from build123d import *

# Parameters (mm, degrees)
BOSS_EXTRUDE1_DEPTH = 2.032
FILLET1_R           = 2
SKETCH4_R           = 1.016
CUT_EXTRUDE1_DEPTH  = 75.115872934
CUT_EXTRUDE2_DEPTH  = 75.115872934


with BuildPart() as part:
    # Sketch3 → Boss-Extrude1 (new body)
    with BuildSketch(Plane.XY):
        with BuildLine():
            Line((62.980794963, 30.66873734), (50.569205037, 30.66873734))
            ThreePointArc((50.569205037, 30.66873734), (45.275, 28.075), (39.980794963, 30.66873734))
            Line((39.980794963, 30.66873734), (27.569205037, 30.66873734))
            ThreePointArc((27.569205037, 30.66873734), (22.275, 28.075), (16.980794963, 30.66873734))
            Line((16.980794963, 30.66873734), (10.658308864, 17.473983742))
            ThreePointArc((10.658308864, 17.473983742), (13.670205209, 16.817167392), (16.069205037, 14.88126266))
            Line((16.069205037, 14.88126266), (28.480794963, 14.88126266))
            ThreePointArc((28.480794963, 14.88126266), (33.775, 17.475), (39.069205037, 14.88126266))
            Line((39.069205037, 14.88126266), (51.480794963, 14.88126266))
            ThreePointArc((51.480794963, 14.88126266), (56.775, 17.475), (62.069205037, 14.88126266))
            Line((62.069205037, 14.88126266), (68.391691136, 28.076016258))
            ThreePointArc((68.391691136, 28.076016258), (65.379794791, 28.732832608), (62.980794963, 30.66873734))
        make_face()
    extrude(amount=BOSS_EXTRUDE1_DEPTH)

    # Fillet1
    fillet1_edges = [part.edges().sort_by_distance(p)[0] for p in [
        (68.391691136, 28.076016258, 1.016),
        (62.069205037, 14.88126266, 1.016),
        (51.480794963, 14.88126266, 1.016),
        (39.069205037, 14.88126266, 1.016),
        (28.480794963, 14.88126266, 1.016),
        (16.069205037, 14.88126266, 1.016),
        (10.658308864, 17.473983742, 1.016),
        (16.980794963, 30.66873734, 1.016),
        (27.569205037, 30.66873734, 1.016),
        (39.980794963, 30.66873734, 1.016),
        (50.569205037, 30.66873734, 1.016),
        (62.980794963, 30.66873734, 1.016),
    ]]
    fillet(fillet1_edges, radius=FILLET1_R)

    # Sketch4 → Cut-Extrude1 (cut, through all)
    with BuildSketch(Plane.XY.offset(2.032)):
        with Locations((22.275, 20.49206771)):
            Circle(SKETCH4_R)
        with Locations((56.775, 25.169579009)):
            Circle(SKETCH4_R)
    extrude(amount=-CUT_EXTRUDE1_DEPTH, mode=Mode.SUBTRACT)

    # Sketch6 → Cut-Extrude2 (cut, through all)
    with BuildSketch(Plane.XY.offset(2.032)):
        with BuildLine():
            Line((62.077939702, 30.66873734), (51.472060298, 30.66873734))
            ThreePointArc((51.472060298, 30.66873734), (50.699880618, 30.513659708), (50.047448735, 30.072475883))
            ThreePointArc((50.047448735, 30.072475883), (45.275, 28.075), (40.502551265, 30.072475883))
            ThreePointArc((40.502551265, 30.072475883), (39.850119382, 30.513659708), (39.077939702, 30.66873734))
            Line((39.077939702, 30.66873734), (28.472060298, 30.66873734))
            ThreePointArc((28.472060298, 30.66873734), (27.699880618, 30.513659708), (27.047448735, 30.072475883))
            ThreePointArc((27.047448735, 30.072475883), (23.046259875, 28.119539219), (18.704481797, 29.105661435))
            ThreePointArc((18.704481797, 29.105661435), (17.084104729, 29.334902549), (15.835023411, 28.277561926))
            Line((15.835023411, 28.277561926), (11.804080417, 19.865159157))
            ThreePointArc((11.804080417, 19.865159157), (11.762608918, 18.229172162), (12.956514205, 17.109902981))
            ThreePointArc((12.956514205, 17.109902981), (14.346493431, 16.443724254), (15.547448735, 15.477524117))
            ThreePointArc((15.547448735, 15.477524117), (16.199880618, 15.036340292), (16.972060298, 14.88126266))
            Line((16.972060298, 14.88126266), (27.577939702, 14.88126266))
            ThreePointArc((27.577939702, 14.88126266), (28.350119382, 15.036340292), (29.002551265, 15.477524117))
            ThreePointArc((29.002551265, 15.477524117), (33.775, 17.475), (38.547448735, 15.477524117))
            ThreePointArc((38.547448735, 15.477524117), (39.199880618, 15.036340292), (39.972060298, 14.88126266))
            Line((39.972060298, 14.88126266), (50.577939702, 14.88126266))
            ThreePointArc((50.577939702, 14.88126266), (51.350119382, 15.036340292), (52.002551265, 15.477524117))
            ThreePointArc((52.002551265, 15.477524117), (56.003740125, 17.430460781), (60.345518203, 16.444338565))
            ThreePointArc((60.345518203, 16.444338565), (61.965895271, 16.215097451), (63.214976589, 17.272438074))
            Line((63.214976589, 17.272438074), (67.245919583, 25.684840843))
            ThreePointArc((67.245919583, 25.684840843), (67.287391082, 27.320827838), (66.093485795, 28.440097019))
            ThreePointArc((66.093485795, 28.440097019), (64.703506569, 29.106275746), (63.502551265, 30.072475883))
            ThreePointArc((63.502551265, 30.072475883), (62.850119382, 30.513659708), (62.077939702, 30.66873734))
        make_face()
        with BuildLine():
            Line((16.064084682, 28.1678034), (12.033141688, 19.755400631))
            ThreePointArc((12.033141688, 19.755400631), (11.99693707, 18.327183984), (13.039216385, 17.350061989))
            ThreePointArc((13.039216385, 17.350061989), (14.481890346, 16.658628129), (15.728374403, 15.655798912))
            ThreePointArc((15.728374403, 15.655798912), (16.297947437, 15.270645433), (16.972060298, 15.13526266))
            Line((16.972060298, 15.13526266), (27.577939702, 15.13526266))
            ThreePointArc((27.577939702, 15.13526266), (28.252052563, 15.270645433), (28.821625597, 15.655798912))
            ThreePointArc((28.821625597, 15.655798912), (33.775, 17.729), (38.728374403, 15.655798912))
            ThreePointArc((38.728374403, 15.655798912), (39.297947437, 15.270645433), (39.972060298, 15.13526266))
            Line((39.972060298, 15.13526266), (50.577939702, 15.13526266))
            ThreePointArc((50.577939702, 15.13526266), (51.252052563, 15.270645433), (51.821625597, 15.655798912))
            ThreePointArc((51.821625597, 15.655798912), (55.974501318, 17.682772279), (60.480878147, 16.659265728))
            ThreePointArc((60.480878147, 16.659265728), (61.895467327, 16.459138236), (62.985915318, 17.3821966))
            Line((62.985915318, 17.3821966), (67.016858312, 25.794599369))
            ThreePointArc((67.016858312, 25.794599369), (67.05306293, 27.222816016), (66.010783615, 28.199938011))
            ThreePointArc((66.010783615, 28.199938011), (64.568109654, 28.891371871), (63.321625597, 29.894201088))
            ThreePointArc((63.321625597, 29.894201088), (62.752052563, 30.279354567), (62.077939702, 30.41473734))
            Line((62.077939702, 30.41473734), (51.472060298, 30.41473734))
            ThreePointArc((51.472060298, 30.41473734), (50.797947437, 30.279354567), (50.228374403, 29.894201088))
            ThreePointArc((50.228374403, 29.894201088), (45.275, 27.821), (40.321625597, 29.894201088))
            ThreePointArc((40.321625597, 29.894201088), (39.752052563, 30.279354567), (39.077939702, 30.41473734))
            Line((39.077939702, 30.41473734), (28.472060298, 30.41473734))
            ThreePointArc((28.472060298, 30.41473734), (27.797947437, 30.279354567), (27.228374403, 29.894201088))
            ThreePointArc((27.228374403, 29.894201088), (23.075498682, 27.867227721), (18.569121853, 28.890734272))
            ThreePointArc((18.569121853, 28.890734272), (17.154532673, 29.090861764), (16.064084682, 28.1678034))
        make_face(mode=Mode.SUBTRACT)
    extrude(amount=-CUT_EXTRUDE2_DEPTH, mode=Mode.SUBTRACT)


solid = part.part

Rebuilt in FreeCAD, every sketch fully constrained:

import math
import FreeCAD as App
import Part
import Sketcher

V = App.Vector


def edges_at(feature, points):
    """Names of the edges that pass closest to the given points."""
    edges = feature.Shape.Edges
    near = lambda p: min(range(len(edges)), key=lambda i: edges[i].distToShape(Part.Vertex(*p))[0])
    return sorted({f"Edge{near(p) + 1}" for p in points})

doc = App.newDocument("Part")
params = doc.addObject("Spreadsheet::Sheet", "Params")
for row, (alias, value) in enumerate([
    ("sketch1_radius", "6.7 mm"),
    ("pad1_length", "2.032 mm"),
    ("fillet_radius", "2 mm"),
    ("sketch3_radius", "2 mm"),
    ("sketch3_radius2", "6.7 mm"),
], start=1):
    params.set(f"A{row}", alias)
    params.set(f"B{row}", "=" + value)
    params.setAlias(f"B{row}", alias)

body = doc.addObject("PartDesign::Body", "Body")

# Sketch on XY plane
sketch1 = body.newObject("Sketcher::SketchObject", "Sketch")
sketch1.AttachmentSupport = (doc.getObject("XY_Plane"), [""])
sketch1.MapMode = "FlatFace"
sketch1.addGeometry(Part.LineSegment(V(63, 31, 0), V(51, 31, 0)), False)
sketch1.addGeometry(Part.ArcOfCircle(Part.Circle(V(45, 35, 0), V(0, 0, 1), 7), math.radians(-142), math.radians(-38)), False)
sketch1.addGeometry(Part.LineSegment(V(40, 31, 0), V(28, 31, 0)), False)
sketch1.addGeometry(Part.ArcOfCircle(Part.Circle(V(22, 35, 0), V(0, 0, 1), 7), math.radians(-142), math.radians(-38)), False)
sketch1.addGeometry(Part.LineSegment(V(17, 31, 0), V(11, 17, 0)), False)
sketch1.addGeometry(Part.ArcOfCircle(Part.Circle(V(11, 11, 0), V(0, 0, 1), 7), math.radians(38), math.radians(91)), False)
sketch1.addGeometry(Part.LineSegment(V(16, 15, 0), V(28, 15, 0)), False)
sketch1.addGeometry(Part.ArcOfCircle(Part.Circle(V(34, 11, 0), V(0, 0, 1), 7), math.radians(38), math.radians(142)), False)
sketch1.addGeometry(Part.LineSegment(V(39, 15, 0), V(51, 15, 0)), False)
sketch1.addGeometry(Part.ArcOfCircle(Part.Circle(V(57, 11, 0), V(0, 0, 1), 7), math.radians(38), math.radians(142)), False)
sketch1.addGeometry(Part.LineSegment(V(62, 15, 0), V(68, 28, 0)), False)
sketch1.addGeometry(Part.ArcOfCircle(Part.Circle(V(68, 35, 0), V(0, 0, 1), 7), math.radians(-142), math.radians(-89)), False)
sketch1.addConstraint(Sketcher.Constraint("Coincident", 0, 2, 1, 2))
sketch1.addConstraint(Sketcher.Constraint("Coincident", 1, 1, 2, 1))
sketch1.addConstraint(Sketcher.Constraint("Coincident", 2, 2, 3, 2))
sketch1.addConstraint(Sketcher.Constraint("Coincident", 3, 1, 4, 1))
sketch1.addConstraint(Sketcher.Constraint("Coincident", 4, 2, 5, 2))
sketch1.addConstraint(Sketcher.Constraint("Coincident", 5, 1, 6, 1))
sketch1.addConstraint(Sketcher.Constraint("Coincident", 6, 2, 7, 2))
sketch1.addConstraint(Sketcher.Constraint("Coincident", 7, 1, 8, 1))
sketch1.addConstraint(Sketcher.Constraint("Coincident", 8, 2, 9, 2))
sketch1.addConstraint(Sketcher.Constraint("Coincident", 9, 1, 10, 1))
sketch1.addConstraint(Sketcher.Constraint("Coincident", 10, 2, 11, 2))
sketch1.addConstraint(Sketcher.Constraint("Coincident", 11, 1, 0, 1))
sketch1.addConstraint(Sketcher.Constraint("Horizontal", 0))
sketch1.addConstraint(Sketcher.Constraint("Horizontal", 2))
sketch1.addConstraint(Sketcher.Constraint("Horizontal", 6))
sketch1.addConstraint(Sketcher.Constraint("Horizontal", 8))
sketch1.addConstraint(Sketcher.Constraint("Equal", 1, 3))
sketch1.addConstraint(Sketcher.Constraint("Equal", 3, 5))
sketch1.addConstraint(Sketcher.Constraint("Equal", 5, 7))
sketch1.addConstraint(Sketcher.Constraint("Equal", 7, 9))
sketch1.addConstraint(Sketcher.Constraint("Equal", 9, 11))
sketch1.addConstraint(Sketcher.Constraint("Parallel", 4, 10))
sketch1.addConstraint(Sketcher.Constraint("Horizontal", 1, 3, 3, 3))
sketch1.addConstraint(Sketcher.Constraint("Horizontal", 5, 3, 7, 3))
sketch1.addConstraint(Sketcher.Constraint("Horizontal", 7, 3, 9, 3))
sketch1.addConstraint(Sketcher.Constraint("Horizontal", 3, 3, 11, 3))
sketch1.addConstraint(Sketcher.Constraint("Horizontal", 0, 2, 1, 1))
sketch1.addConstraint(Sketcher.Constraint("Horizontal", 2, 2, 3, 1))
sketch1.addConstraint(Sketcher.Constraint("Horizontal", 6, 2, 7, 1))
sketch1.addConstraint(Sketcher.Constraint("Horizontal", 8, 2, 9, 1))
sketch1.addConstraint(Sketcher.Constraint("Equal", 0, 2))
sketch1.addConstraint(Sketcher.Constraint("Equal", 2, 6))
sketch1.addConstraint(Sketcher.Constraint("Equal", 6, 8))
sketch1.addConstraint(Sketcher.Constraint("Equal", 4, 10))
sketch1.addConstraint(Sketcher.Constraint("Radius", 1, 6.7))
sketch1.addConstraint(Sketcher.Constraint("DistanceX", 3, 3, 1, 3, 23.0))
sketch1.addConstraint(Sketcher.Constraint("DistanceY", 5, 3, 3, 3, 24.0))
sketch1.addConstraint(Sketcher.Constraint("DistanceX", 5, 3, 3, 3, 11.5))
sketch1.addConstraint(Sketcher.Constraint("DistanceX", -1, 1, 1, 3, 45.275))
sketch1.addConstraint(Sketcher.Constraint("DistanceY", -1, 1, 1, 3, 34.775))
sketch1.addConstraint(Sketcher.Constraint("DistanceX", 0, 2, 0, 1, 12.41159))
sketch1.addConstraint(Sketcher.Constraint("DistanceX", -1, 1, 4, 2, 10.658309))
sketch1.setExpression("Constraints[34]", "Params.sketch1_radius")
pad1 = body.newObject("PartDesign::Pad", "Pad")
pad1.Profile = sketch1
pad1.setExpression("Length", "Params.pad1_length")
doc.recompute()

fillet = body.newObject("PartDesign::Fillet", "Fillet")
fillet.Base = (pad1, edges_at(pad1, [
    (68.392, 28.076, 1.016),
    (62.069, 14.881, 1.016),
    (51.481, 14.881, 1.016),
    (39.069, 14.881, 1.016),
    (28.481, 14.881, 1.016),
    (16.069, 14.881, 1.016),
    (10.658, 17.474, 1.016),
    (16.981, 30.669, 1.016),
    (27.569, 30.669, 1.016),
    (39.981, 30.669, 1.016),
    (50.569, 30.669, 1.016),
    (62.981, 30.669, 1.016),
]))
fillet.setExpression("Radius", "Params.fillet_radius")

# Sketch on XY plane
sketch2 = body.newObject("Sketcher::SketchObject", "Sketch001")
sketch2.AttachmentSupport = (doc.getObject("XY_Plane"), [""])
sketch2.MapMode = "FlatFace"
sketch2.AttachmentOffset = App.Placement(V(0, 0, 2.032), App.Rotation())
sketch2.addGeometry(Part.Circle(V(22.3, 20.5, 0), V(0, 0, 1), 1), False)
sketch2.addGeometry(Part.Circle(V(56.8, 25.2, 0), V(0, 0, 1), 1), False)
sketch2.addConstraint(Sketcher.Constraint("Equal", 0, 1))
sketch2.addConstraint(Sketcher.Constraint("Diameter", 0, 2.032))
sketch2.addConstraint(Sketcher.Constraint("DistanceX", 0, 3, 1, 3, 34.5))
sketch2.addConstraint(Sketcher.Constraint("DistanceX", -1, 1, 0, 3, 22.275))
sketch2.addConstraint(Sketcher.Constraint("DistanceY", -1, 1, 1, 3, 25.169579))
sketch2.addConstraint(Sketcher.Constraint("DistanceY", 0, 3, 1, 3, 4.677511))
pocket1 = body.newObject("PartDesign::Pocket", "Pocket")
pocket1.Profile = sketch2
pocket1.Type = "ThroughAll"

# Sketch on XY plane
sketch3 = body.newObject("Sketcher::SketchObject", "Sketch002")
sketch3.AttachmentSupport = (doc.getObject("XY_Plane"), [""])
sketch3.MapMode = "FlatFace"
sketch3.AttachmentOffset = App.Placement(V(0, 0, 2.032), App.Rotation())
sketch3.addGeometry(Part.LineSegment(V(62.1, 30.7, 0), V(51.5, 30.7, 0)), False)
sketch3.addGeometry(Part.ArcOfCircle(Part.Circle(V(51.5, 28.7, 0), V(0, 0, 1), 2), math.radians(90), math.radians(135)), False)
sketch3.addGeometry(Part.ArcOfCircle(Part.Circle(V(45.3, 34.8, 0), V(0, 0, 1), 6.7), math.radians(-135), math.radians(-45)), False)
sketch3.addGeometry(Part.ArcOfCircle(Part.Circle(V(39.1, 28.7, 0), V(0, 0, 1), 2), math.radians(45), math.radians(90)), False)
sketch3.addGeometry(Part.LineSegment(V(39.1, 30.7, 0), V(28.5, 30.7, 0)), False)
sketch3.addGeometry(Part.ArcOfCircle(Part.Circle(V(28.5, 28.7, 0), V(0, 0, 1), 2), math.radians(90), math.radians(135)), False)
sketch3.addGeometry(Part.ArcOfCircle(Part.Circle(V(22.3, 34.8, 0), V(0, 0, 1), 6.7), math.radians(-122), math.radians(-45)), False)
sketch3.addGeometry(Part.ArcOfCircle(Part.Circle(V(17.6, 27.4, 0), V(0, 0, 1), 2), math.radians(58), math.radians(154)), False)
sketch3.addGeometry(Part.LineSegment(V(15.8, 28.3, 0), V(11.8, 19.9, 0)), False)
sketch3.addGeometry(Part.ArcOfCircle(Part.Circle(V(13.6, 19, 0), V(0, 0, 1), 2), math.radians(154), math.radians(251)), False)
sketch3.addGeometry(Part.ArcOfCircle(Part.Circle(V(10.8, 10.8, 0), V(0, 0, 1), 6.7), math.radians(45), math.radians(71)), False)
sketch3.addGeometry(Part.ArcOfCircle(Part.Circle(V(17, 16.9, 0), V(0, 0, 1), 2), math.radians(-135), math.radians(-90)), False)
sketch3.addGeometry(Part.LineSegment(V(17, 14.9, 0), V(27.6, 14.9, 0)), False)
sketch3.addGeometry(Part.ArcOfCircle(Part.Circle(V(27.6, 16.9, 0), V(0, 0, 1), 2), math.radians(-90), math.radians(-45)), False)
sketch3.addGeometry(Part.ArcOfCircle(Part.Circle(V(33.8, 10.8, 0), V(0, 0, 1), 6.7), math.radians(45), math.radians(135)), False)
sketch3.addGeometry(Part.ArcOfCircle(Part.Circle(V(40, 16.9, 0), V(0, 0, 1), 2), math.radians(-135), math.radians(-90)), False)
sketch3.addGeometry(Part.LineSegment(V(40, 14.9, 0), V(50.6, 14.9, 0)), False)
sketch3.addGeometry(Part.ArcOfCircle(Part.Circle(V(50.6, 16.9, 0), V(0, 0, 1), 2), math.radians(-90), math.radians(-45)), False)
sketch3.addGeometry(Part.ArcOfCircle(Part.Circle(V(56.8, 10.8, 0), V(0, 0, 1), 6.7), math.radians(58), math.radians(135)), False)
sketch3.addGeometry(Part.ArcOfCircle(Part.Circle(V(61.4, 18.1, 0), V(0, 0, 1), 2), math.radians(-122), math.radians(-26)), False)
sketch3.addGeometry(Part.LineSegment(V(63.2, 17.3, 0), V(67.2, 25.7, 0)), False)
sketch3.addGeometry(Part.ArcOfCircle(Part.Circle(V(65.4, 26.5, 0), V(0, 0, 1), 2), math.radians(-26), math.radians(71)), False)
sketch3.addGeometry(Part.ArcOfCircle(Part.Circle(V(68.3, 34.8, 0), V(0, 0, 1), 6.7), math.radians(-135), math.radians(-109)), False)
sketch3.addGeometry(Part.ArcOfCircle(Part.Circle(V(62.1, 28.7, 0), V(0, 0, 1), 2), math.radians(45), math.radians(90)), False)
sketch3.addGeometry(Part.LineSegment(V(12, 19.8, 0), V(16.1, 28.2, 0)), False)
sketch3.addGeometry(Part.ArcOfCircle(Part.Circle(V(17.6, 27.4, 0), V(0, 0, 1), 1.7), math.radians(58), math.radians(154)), False)
sketch3.addGeometry(Part.ArcOfCircle(Part.Circle(V(22.3, 34.8, 0), V(0, 0, 1), 7), math.radians(-122), math.radians(-45)), False)
sketch3.addGeometry(Part.ArcOfCircle(Part.Circle(V(28.5, 28.7, 0), V(0, 0, 1), 1.7), math.radians(90), math.radians(135)), False)
sketch3.addGeometry(Part.LineSegment(V(28.5, 30.4, 0), V(39.1, 30.4, 0)), False)
sketch3.addGeometry(Part.ArcOfCircle(Part.Circle(V(39.1, 28.7, 0), V(0, 0, 1), 1.7), math.radians(45), math.radians(90)), False)
sketch3.addGeometry(Part.ArcOfCircle(Part.Circle(V(45.3, 34.8, 0), V(0, 0, 1), 7), math.radians(-135), math.radians(-45)), False)
sketch3.addGeometry(Part.ArcOfCircle(Part.Circle(V(51.5, 28.7, 0), V(0, 0, 1), 1.7), math.radians(90), math.radians(135)), False)
sketch3.addGeometry(Part.LineSegment(V(51.5, 30.4, 0), V(62.1, 30.4, 0)), False)
sketch3.addGeometry(Part.ArcOfCircle(Part.Circle(V(62.1, 28.7, 0), V(0, 0, 1), 1.7), math.radians(45), math.radians(90)), False)
sketch3.addGeometry(Part.ArcOfCircle(Part.Circle(V(68.3, 34.8, 0), V(0, 0, 1), 7), math.radians(-135), math.radians(-109)), False)
sketch3.addGeometry(Part.ArcOfCircle(Part.Circle(V(65.4, 26.5, 0), V(0, 0, 1), 1.7), math.radians(-26), math.radians(71)), False)
sketch3.addGeometry(Part.LineSegment(V(67, 25.8, 0), V(63, 17.4, 0)), False)
sketch3.addGeometry(Part.ArcOfCircle(Part.Circle(V(61.4, 18.1, 0), V(0, 0, 1), 1.7), math.radians(-122), math.radians(-26)), False)
sketch3.addGeometry(Part.ArcOfCircle(Part.Circle(V(56.8, 10.8, 0), V(0, 0, 1), 7), math.radians(58), math.radians(135)), False)
sketch3.addGeometry(Part.ArcOfCircle(Part.Circle(V(50.6, 16.9, 0), V(0, 0, 1), 1.7), math.radians(-90), math.radians(-45)), False)
sketch3.addGeometry(Part.LineSegment(V(50.6, 15.1, 0), V(40, 15.1, 0)), False)
sketch3.addGeometry(Part.ArcOfCircle(Part.Circle(V(40, 16.9, 0), V(0, 0, 1), 1.7), math.radians(-135), math.radians(-90)), False)
sketch3.addGeometry(Part.ArcOfCircle(Part.Circle(V(33.8, 10.8, 0), V(0, 0, 1), 7), math.radians(45), math.radians(135)), False)
sketch3.addGeometry(Part.ArcOfCircle(Part.Circle(V(27.6, 16.9, 0), V(0, 0, 1), 1.7), math.radians(-90), math.radians(-45)), False)
sketch3.addGeometry(Part.LineSegment(V(27.6, 15.1, 0), V(17, 15.1, 0)), False)
sketch3.addGeometry(Part.ArcOfCircle(Part.Circle(V(17, 16.9, 0), V(0, 0, 1), 1.7), math.radians(-135), math.radians(-90)), False)
sketch3.addGeometry(Part.ArcOfCircle(Part.Circle(V(10.8, 10.8, 0), V(0, 0, 1), 7), math.radians(45), math.radians(71)), False)
sketch3.addGeometry(Part.ArcOfCircle(Part.Circle(V(13.6, 19, 0), V(0, 0, 1), 1.7), math.radians(154), math.radians(251)), False)
sketch3.addConstraint(Sketcher.Constraint("Tangent", 0, 2, 1, 1))
sketch3.addConstraint(Sketcher.Constraint("Tangent", 1, 2, 2, 2))
sketch3.addConstraint(Sketcher.Constraint("Tangent", 2, 1, 3, 1))
sketch3.addConstraint(Sketcher.Constraint("Tangent", 3, 2, 4, 1))
sketch3.addConstraint(Sketcher.Constraint("Tangent", 4, 2, 5, 1))
sketch3.addConstraint(Sketcher.Constraint("Tangent", 5, 2, 6, 2))
sketch3.addConstraint(Sketcher.Constraint("Tangent", 6, 1, 7, 1))
sketch3.addConstraint(Sketcher.Constraint("Tangent", 7, 2, 8, 1))
sketch3.addConstraint(Sketcher.Constraint("Tangent", 8, 2, 9, 1))
sketch3.addConstraint(Sketcher.Constraint("Tangent", 9, 2, 10, 2))
sketch3.addConstraint(Sketcher.Constraint("Tangent", 10, 1, 11, 1))
sketch3.addConstraint(Sketcher.Constraint("Tangent", 11, 2, 12, 1))
sketch3.addConstraint(Sketcher.Constraint("Tangent", 12, 2, 13, 1))
sketch3.addConstraint(Sketcher.Constraint("Tangent", 13, 2, 14, 2))
sketch3.addConstraint(Sketcher.Constraint("Tangent", 14, 1, 15, 1))
sketch3.addConstraint(Sketcher.Constraint("Tangent", 15, 2, 16, 1))
sketch3.addConstraint(Sketcher.Constraint("Tangent", 16, 2, 17, 1))
sketch3.addConstraint(Sketcher.Constraint("Tangent", 17, 2, 18, 2))
sketch3.addConstraint(Sketcher.Constraint("Tangent", 18, 1, 19, 1))
sketch3.addConstraint(Sketcher.Constraint("Tangent", 19, 2, 20, 1))
sketch3.addConstraint(Sketcher.Constraint("Tangent", 20, 2, 21, 1))
sketch3.addConstraint(Sketcher.Constraint("Tangent", 21, 2, 22, 2))
sketch3.addConstraint(Sketcher.Constraint("Tangent", 22, 1, 23, 1))
sketch3.addConstraint(Sketcher.Constraint("Tangent", 23, 2, 0, 1))
sketch3.addConstraint(Sketcher.Constraint("Tangent", 24, 2, 25, 2))
sketch3.addConstraint(Sketcher.Constraint("Tangent", 25, 1, 26, 1))
sketch3.addConstraint(Sketcher.Constraint("Tangent", 26, 2, 27, 2))
sketch3.addConstraint(Sketcher.Constraint("Tangent", 27, 1, 28, 1))
sketch3.addConstraint(Sketcher.Constraint("Tangent", 28, 2, 29, 2))
sketch3.addConstraint(Sketcher.Constraint("Tangent", 29, 1, 30, 1))
sketch3.addConstraint(Sketcher.Constraint("Tangent", 30, 2, 31, 2))
sketch3.addConstraint(Sketcher.Constraint("Tangent", 31, 1, 32, 1))
sketch3.addConstraint(Sketcher.Constraint("Tangent", 32, 2, 33, 2))
sketch3.addConstraint(Sketcher.Constraint("Tangent", 33, 1, 34, 1))
sketch3.addConstraint(Sketcher.Constraint("Tangent", 34, 2, 35, 2))
sketch3.addConstraint(Sketcher.Constraint("Tangent", 35, 1, 36, 1))
sketch3.addConstraint(Sketcher.Constraint("Tangent", 36, 2, 37, 2))
sketch3.addConstraint(Sketcher.Constraint("Tangent", 37, 1, 38, 1))
sketch3.addConstraint(Sketcher.Constraint("Tangent", 38, 2, 39, 2))
sketch3.addConstraint(Sketcher.Constraint("Tangent", 39, 1, 40, 1))
sketch3.addConstraint(Sketcher.Constraint("Tangent", 40, 2, 41, 2))
sketch3.addConstraint(Sketcher.Constraint("Tangent", 41, 1, 42, 1))
sketch3.addConstraint(Sketcher.Constraint("Tangent", 42, 2, 43, 2))
sketch3.addConstraint(Sketcher.Constraint("Tangent", 43, 1, 44, 1))
sketch3.addConstraint(Sketcher.Constraint("Tangent", 44, 2, 45, 2))
sketch3.addConstraint(Sketcher.Constraint("Tangent", 45, 1, 46, 1))
sketch3.addConstraint(Sketcher.Constraint("Tangent", 46, 2, 47, 2))
sketch3.addConstraint(Sketcher.Constraint("Tangent", 47, 1, 24, 1))
sketch3.addConstraint(Sketcher.Constraint("Horizontal", 0))
sketch3.addConstraint(Sketcher.Constraint("Horizontal", 4))
sketch3.addConstraint(Sketcher.Constraint("Horizontal", 12))
sketch3.addConstraint(Sketcher.Constraint("Horizontal", 16))
sketch3.addConstraint(Sketcher.Constraint("Horizontal", 28))
sketch3.addConstraint(Sketcher.Constraint("Horizontal", 32))
sketch3.addConstraint(Sketcher.Constraint("Horizontal", 40))
sketch3.addConstraint(Sketcher.Constraint("Horizontal", 44))
sketch3.addConstraint(Sketcher.Constraint("Coincident", 25, 3, 7, 3))
sketch3.addConstraint(Sketcher.Constraint("Coincident", 26, 3, 6, 3))
sketch3.addConstraint(Sketcher.Constraint("Coincident", 27, 3, 5, 3))
sketch3.addConstraint(Sketcher.Constraint("Coincident", 29, 3, 3, 3))
sketch3.addConstraint(Sketcher.Constraint("Coincident", 30, 3, 2, 3))
sketch3.addConstraint(Sketcher.Constraint("Coincident", 31, 3, 1, 3))
sketch3.addConstraint(Sketcher.Constraint("Coincident", 33, 3, 23, 3))
sketch3.addConstraint(Sketcher.Constraint("Coincident", 34, 3, 22, 3))
sketch3.addConstraint(Sketcher.Constraint("Coincident", 35, 3, 21, 3))
sketch3.addConstraint(Sketcher.Constraint("Coincident", 37, 3, 19, 3))
sketch3.addConstraint(Sketcher.Constraint("Coincident", 38, 3, 18, 3))
sketch3.addConstraint(Sketcher.Constraint("Coincident", 39, 3, 17, 3))
sketch3.addConstraint(Sketcher.Constraint("Coincident", 41, 3, 15, 3))
sketch3.addConstraint(Sketcher.Constraint("Coincident", 42, 3, 14, 3))
sketch3.addConstraint(Sketcher.Constraint("Coincident", 43, 3, 13, 3))
sketch3.addConstraint(Sketcher.Constraint("Coincident", 45, 3, 11, 3))
sketch3.addConstraint(Sketcher.Constraint("Coincident", 46, 3, 10, 3))
sketch3.addConstraint(Sketcher.Constraint("Coincident", 47, 3, 9, 3))
sketch3.addConstraint(Sketcher.Constraint("Equal", 1, 3))
sketch3.addConstraint(Sketcher.Constraint("Equal", 3, 5))
sketch3.addConstraint(Sketcher.Constraint("Equal", 2, 6))
sketch3.addConstraint(Sketcher.Constraint("Equal", 5, 7))
sketch3.addConstraint(Sketcher.Constraint("Equal", 7, 9))
sketch3.addConstraint(Sketcher.Constraint("Equal", 6, 10))
sketch3.addConstraint(Sketcher.Constraint("Equal", 9, 11))
sketch3.addConstraint(Sketcher.Constraint("Equal", 11, 13))
sketch3.addConstraint(Sketcher.Constraint("Equal", 10, 14))
sketch3.addConstraint(Sketcher.Constraint("Equal", 13, 15))
sketch3.addConstraint(Sketcher.Constraint("Equal", 15, 17))
sketch3.addConstraint(Sketcher.Constraint("Equal", 14, 18))
sketch3.addConstraint(Sketcher.Constraint("Equal", 17, 19))
sketch3.addConstraint(Sketcher.Constraint("Equal", 19, 21))
sketch3.addConstraint(Sketcher.Constraint("Equal", 18, 22))
sketch3.addConstraint(Sketcher.Constraint("Equal", 21, 23))
sketch3.addConstraint(Sketcher.Constraint("Equal", 35, 37))
sketch3.addConstraint(Sketcher.Constraint("Parallel", 8, 20))
sketch3.addConstraint(Sketcher.Constraint("Horizontal", 1, 3, 3, 3))
sketch3.addConstraint(Sketcher.Constraint("Horizontal", 2, 3, 6, 3))
sketch3.addConstraint(Sketcher.Constraint("Horizontal", 10, 3, 14, 3))
sketch3.addConstraint(Sketcher.Constraint("Horizontal", 13, 3, 15, 3))
sketch3.addConstraint(Sketcher.Constraint("Horizontal", 14, 3, 18, 3))
sketch3.addConstraint(Sketcher.Constraint("Horizontal", 6, 3, 22, 3))
sketch3.addConstraint(Sketcher.Constraint("Equal", 0, 4))
sketch3.addConstraint(Sketcher.Constraint("Equal", 4, 12))
sketch3.addConstraint(Sketcher.Constraint("Equal", 12, 16))
sketch3.addConstraint(Sketcher.Constraint("Equal", 8, 20))
sketch3.addConstraint(Sketcher.Constraint("Radius", 1, 2.0))
sketch3.addConstraint(Sketcher.Constraint("Radius", 2, 6.7))
sketch3.addConstraint(Sketcher.Constraint("Radius", 25, 1.746))
sketch3.addConstraint(Sketcher.Constraint("DistanceX", -1, 1, 2, 3, 45.275))
sketch3.addConstraint(Sketcher.Constraint("DistanceY", -1, 1, 2, 3, 34.775))
sketch3.addConstraint(Sketcher.Constraint("DistanceX", -1, 1, 6, 3, 22.275))
sketch3.addConstraint(Sketcher.Constraint("DistanceX", -1, 1, 10, 3, 10.775))
sketch3.addConstraint(Sketcher.Constraint("DistanceY", -1, 1, 10, 3, 10.775))
sketch3.addConstraint(Sketcher.Constraint("DistanceX", -1, 1, 14, 3, 33.775))
sketch3.addConstraint(Sketcher.Constraint("DistanceX", 0, 2, 0, 1, 10.605879))
sketch3.addConstraint(Sketcher.Constraint("DistanceY", -1, 1, 35, 1, 25.794599))
sketch3.addConstraint(Sketcher.Constraint("Distance", 8, 9.328291))
sketch3.setExpression("Constraints[102]", "Params.sketch3_radius")
sketch3.setExpression("Constraints[103]", "Params.sketch3_radius2")
pocket2 = body.newObject("PartDesign::Pocket", "Pocket001")
pocket2.Profile = sketch3
pocket2.Type = "ThroughAll"

doc.recompute()
